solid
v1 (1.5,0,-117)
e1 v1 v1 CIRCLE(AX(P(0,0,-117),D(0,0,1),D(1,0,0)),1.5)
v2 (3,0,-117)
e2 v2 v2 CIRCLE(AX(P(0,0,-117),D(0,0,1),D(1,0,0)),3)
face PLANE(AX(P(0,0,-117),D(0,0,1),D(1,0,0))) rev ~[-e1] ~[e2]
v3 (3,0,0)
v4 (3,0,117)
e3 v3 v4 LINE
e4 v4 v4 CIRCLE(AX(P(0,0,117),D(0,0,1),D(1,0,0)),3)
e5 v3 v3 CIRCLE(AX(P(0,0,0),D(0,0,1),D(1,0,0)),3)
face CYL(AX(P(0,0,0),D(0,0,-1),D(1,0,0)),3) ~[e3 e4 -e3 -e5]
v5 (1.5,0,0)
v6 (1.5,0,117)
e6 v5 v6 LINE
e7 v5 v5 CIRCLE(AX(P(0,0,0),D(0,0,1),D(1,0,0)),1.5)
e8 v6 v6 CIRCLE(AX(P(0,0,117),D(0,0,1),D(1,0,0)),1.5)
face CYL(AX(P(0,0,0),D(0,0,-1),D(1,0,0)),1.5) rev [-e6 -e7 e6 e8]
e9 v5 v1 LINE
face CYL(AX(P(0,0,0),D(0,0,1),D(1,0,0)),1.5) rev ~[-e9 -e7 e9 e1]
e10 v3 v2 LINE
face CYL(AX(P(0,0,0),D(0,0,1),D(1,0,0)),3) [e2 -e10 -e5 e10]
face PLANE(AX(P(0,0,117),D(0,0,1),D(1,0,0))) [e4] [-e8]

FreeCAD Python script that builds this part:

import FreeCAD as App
import Part
import Sketcher
Q = App.Units.Quantity

doc = App.newDocument("Part")
params = doc.addObject("Spreadsheet::Sheet", "Params")
for row, (alias, value) in enumerate([
    ("sketch1_diameter", "6 mm"),
    ("sketch1_diameter2", "3 mm"),
    ("pad1_length", "234 mm"),
], start=1):
    params.set(f"A{row}", alias)
    params.set(f"B{row}", "=" + value)
    params.setAlias(f"B{row}", alias)

body = doc.addObject("PartDesign::Body", "Body")

# Sketch on XY plane
sketch1 = body.newObject("Sketcher::SketchObject", "Sketch")
sketch1.AttachmentSupport = (doc.getObject("XY_Plane"), [""])
sketch1.MapMode = "FlatFace"
sketch1.addGeometry(Part.Circle(App.Vector(0, 0, 0), App.Vector(0, 0, 1), 3), False)
sketch1.addGeometry(Part.Circle(App.Vector(0, 0, 0), App.Vector(0, 0, 1), 1.5), False)
sketch1.addConstraint(Sketcher.Constraint("Coincident", 0, 3, -1, 1))
sketch1.addConstraint(Sketcher.Constraint("Coincident", 1, 3, -1, 1))
sketch1.addConstraint(Sketcher.Constraint("Diameter", 0, Q("6 mm")))
sketch1.addConstraint(Sketcher.Constraint("Diameter", 1, Q("3 mm")))
sketch1.setExpression("Constraints[2]", "Params.sketch1_diameter")
sketch1.setExpression("Constraints[3]", "Params.sketch1_diameter2")
pad1 = body.newObject("PartDesign::Pad", "Pad")
pad1.Profile = sketch1
pad1.setExpression("Length", "Params.pad1_length")
pad1.Midplane = True

doc.recompute()
